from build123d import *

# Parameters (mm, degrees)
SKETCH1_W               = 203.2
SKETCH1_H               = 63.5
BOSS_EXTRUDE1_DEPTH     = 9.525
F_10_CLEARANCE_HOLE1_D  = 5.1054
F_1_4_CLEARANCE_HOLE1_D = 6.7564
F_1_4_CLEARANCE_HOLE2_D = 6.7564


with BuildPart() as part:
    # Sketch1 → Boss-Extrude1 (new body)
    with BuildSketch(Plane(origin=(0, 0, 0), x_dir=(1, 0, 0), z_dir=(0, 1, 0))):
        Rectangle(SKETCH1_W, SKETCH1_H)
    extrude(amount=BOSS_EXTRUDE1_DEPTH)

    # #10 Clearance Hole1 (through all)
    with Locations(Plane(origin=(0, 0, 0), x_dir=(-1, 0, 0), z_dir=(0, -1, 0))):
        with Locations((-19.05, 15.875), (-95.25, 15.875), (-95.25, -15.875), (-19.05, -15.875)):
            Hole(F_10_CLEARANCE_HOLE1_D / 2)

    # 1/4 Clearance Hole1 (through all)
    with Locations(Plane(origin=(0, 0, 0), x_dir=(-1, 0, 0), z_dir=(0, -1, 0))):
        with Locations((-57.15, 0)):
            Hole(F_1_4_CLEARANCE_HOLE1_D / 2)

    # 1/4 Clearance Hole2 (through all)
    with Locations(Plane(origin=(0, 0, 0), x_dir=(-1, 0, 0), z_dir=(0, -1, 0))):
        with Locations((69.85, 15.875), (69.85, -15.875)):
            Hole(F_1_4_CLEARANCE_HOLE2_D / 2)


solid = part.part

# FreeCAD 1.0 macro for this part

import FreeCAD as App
import Part
import Sketcher
from FreeCAD import Vector
Q = App.Units.Quantity

doc = App.newDocument("Part")
params = doc.addObject("Spreadsheet::Sheet", "Params")
for row, (alias, value) in enumerate([
    ("sketch1_width", "8 in"),
    ("sketch1_height", "2.5 in"),
    ("pad1_length", "0.375 in"),
    ("sketch2_diameter", "0.201 in"),
    ("hole_diameter", "0.201 in"),
    ("sketch3_diameter", "0.266 in"),
    ("hole2_diameter", "0.266 in"),
    ("sketch4_diameter", "0.266 in"),
    ("hole3_diameter", "0.266 in"),
], start=1):
    params.set(f"A{row}", alias)
    params.set(f"B{row}", "=" + value)
    params.setAlias(f"B{row}", alias)

body = doc.addObject("PartDesign::Body", "Body")

# Sketch on XZ plane
sketch1 = body.newObject("Sketcher::SketchObject", "Sketch")
sketch1.AttachmentSupport = (doc.getObject("XZ_Plane"), [""])
sketch1.MapMode = "FlatFace"
sketch1.addGeometry(Part.LineSegment(Vector(-102, -32, 0), Vector(-102, 32, 0)), False)
sketch1.addGeometry(Part.LineSegment(Vector(-102, 32, 0), Vector(102, 32, 0)), False)
sketch1.addGeometry(Part.LineSegment(Vector(102, 32, 0), Vector(102, -32, 0)), False)
sketch1.addGeometry(Part.LineSegment(Vector(102, -32, 0), Vector(-102, -32, 0)), False)
sketch1.addConstraint(Sketcher.Constraint("Coincident", 0, 2, 1, 1))
sketch1.addConstraint(Sketcher.Constraint("Coincident", 1, 2, 2, 1))
sketch1.addConstraint(Sketcher.Constraint("Coincident", 2, 2, 3, 1))
sketch1.addConstraint(Sketcher.Constraint("Coincident", 3, 2, 0, 1))
sketch1.addConstraint(Sketcher.Constraint("Vertical", 0))
sketch1.addConstraint(Sketcher.Constraint("Horizontal", 1))
sketch1.addConstraint(Sketcher.Constraint("Vertical", 2))
sketch1.addConstraint(Sketcher.Constraint("Horizontal", 3))
sketch1.addConstraint(Sketcher.Constraint("Symmetric", 0, 2, 2, 2, -1, 1))
sketch1.addConstraint(Sketcher.Constraint("DistanceX", 1, 1, 1, 2, Q("8 in")))
sketch1.addConstraint(Sketcher.Constraint("DistanceY", 0, 1, 0, 2, Q("2.5 in")))
sketch1.setExpression("Constraints[9]", "Params.sketch1_width")
sketch1.setExpression("Constraints[10]", "Params.sketch1_height")
pad1 = body.newObject("PartDesign::Pad", "Pad")
pad1.Profile = sketch1
pad1.setExpression("Length", "Params.pad1_length")
pad1.Reversed = True

# Sketch on XZ plane
sketch2 = body.newObject("Sketcher::SketchObject", "Sketch001")
sketch2.AttachmentSupport = (doc.getObject("XZ_Plane"), [""])
sketch2.MapMode = "FlatFace"
sketch2.addGeometry(Part.Circle(Vector(19.1, -15.9, 0), Vector(0, 0, 1), 2.6), False)
sketch2.addGeometry(Part.Circle(Vector(95.2, -15.9, 0), Vector(0, 0, 1), 2.6), False)
sketch2.addGeometry(Part.Circle(Vector(95.2, 15.9, 0), Vector(0, 0, 1), 2.6), False)
sketch2.addGeometry(Part.Circle(Vector(19.1, 15.9, 0), Vector(0, 0, 1), 2.6), False)
sketch2.addConstraint(Sketcher.Constraint("Equal", 0, 1))
sketch2.addConstraint(Sketcher.Constraint("Equal", 1, 2))
sketch2.addConstraint(Sketcher.Constraint("Equal", 2, 3))
sketch2.addConstraint(Sketcher.Constraint("Symmetric", 1, 3, 2, 3, -1))
sketch2.addConstraint(Sketcher.Constraint("Symmetric", 0, 3, 3, 3, -1))
sketch2.addConstraint(Sketcher.Constraint("Horizontal", 0, 3, 1, 3))
sketch2.addConstraint(Sketcher.Constraint("Diameter", 0, Q("0.201 in")))
sketch2.addConstraint(Sketcher.Constraint("DistanceX", 0, 3, 1, 3, Q("3 in")))
sketch2.addConstraint(Sketcher.Constraint("DistanceX", -1, 1, 0, 3, Q("0.75 in")))
sketch2.addConstraint(Sketcher.Constraint("DistanceY", 1, 3, 2, 3, Q("1.25 in")))
sketch2.setExpression("Constraints[6]", "Params.sketch2_diameter")
doc.recompute()
hole = body.newObject("PartDesign::Hole", "Hole")
hole.Profile = sketch2
hole.ThreadType = "None"
hole.setExpression("Diameter", "Params.hole_diameter")
hole.DepthType = "ThroughAll"

# Sketch on XZ plane
sketch3 = body.newObject("Sketcher::SketchObject", "Sketch002")
sketch3.AttachmentSupport = (doc.getObject("XZ_Plane"), [""])
sketch3.MapMode = "FlatFace"
sketch3.addGeometry(Part.Circle(Vector(57.1, 0, 0), Vector(0, 0, 1), 3.4), False)
sketch3.addConstraint(Sketcher.Constraint("PointOnObject", 0, 3, -1))
sketch3.addConstraint(Sketcher.Constraint("Diameter", 0, Q("0.266 in")))
sketch3.addConstraint(Sketcher.Constraint("DistanceX", -1, 1, 0, 3, Q("2.25 in")))
sketch3.setExpression("Constraints[1]", "Params.sketch3_diameter")
doc.recompute()
hole2 = body.newObject("PartDesign::Hole", "Hole001")
hole2.Profile = sketch3
hole2.ThreadType = "None"
hole2.setExpression("Diameter", "Params.hole2_diameter")
hole2.DepthType = "ThroughAll"

# Sketch on XZ plane
sketch4 = body.newObject("Sketcher::SketchObject", "Sketch003")
sketch4.AttachmentSupport = (doc.getObject("XZ_Plane"), [""])
sketch4.MapMode = "FlatFace"
sketch4.addGeometry(Part.Circle(Vector(-69.8, -15.9, 0), Vector(0, 0, 1), 3.4), False)
sketch4.addGeometry(Part.Circle(Vector(-69.8, 15.9, 0), Vector(0, 0, 1), 3.4), False)
sketch4.addConstraint(Sketcher.Constraint("Equal", 0, 1))
sketch4.addConstraint(Sketcher.Constraint("Symmetric", 0, 3, 1, 3, -1))
sketch4.addConstraint(Sketcher.Constraint("Diameter", 0, Q("0.266 in")))
sketch4.addConstraint(Sketcher.Constraint("DistanceX", 0, 3, -1, 1, Q("2.75 in")))
sketch4.addConstraint(Sketcher.Constraint("DistanceY", 0, 3, 1, 3, Q("1.25 in")))
sketch4.setExpression("Constraints[2]", "Params.sketch4_diameter")
doc.recompute()
hole3 = body.newObject("PartDesign::Hole", "Hole002")
hole3.Profile = sketch4
hole3.ThreadType = "None"
hole3.setExpression("Diameter", "Params.hole3_diameter")
hole3.DepthType = "ThroughAll"

doc.recompute()
